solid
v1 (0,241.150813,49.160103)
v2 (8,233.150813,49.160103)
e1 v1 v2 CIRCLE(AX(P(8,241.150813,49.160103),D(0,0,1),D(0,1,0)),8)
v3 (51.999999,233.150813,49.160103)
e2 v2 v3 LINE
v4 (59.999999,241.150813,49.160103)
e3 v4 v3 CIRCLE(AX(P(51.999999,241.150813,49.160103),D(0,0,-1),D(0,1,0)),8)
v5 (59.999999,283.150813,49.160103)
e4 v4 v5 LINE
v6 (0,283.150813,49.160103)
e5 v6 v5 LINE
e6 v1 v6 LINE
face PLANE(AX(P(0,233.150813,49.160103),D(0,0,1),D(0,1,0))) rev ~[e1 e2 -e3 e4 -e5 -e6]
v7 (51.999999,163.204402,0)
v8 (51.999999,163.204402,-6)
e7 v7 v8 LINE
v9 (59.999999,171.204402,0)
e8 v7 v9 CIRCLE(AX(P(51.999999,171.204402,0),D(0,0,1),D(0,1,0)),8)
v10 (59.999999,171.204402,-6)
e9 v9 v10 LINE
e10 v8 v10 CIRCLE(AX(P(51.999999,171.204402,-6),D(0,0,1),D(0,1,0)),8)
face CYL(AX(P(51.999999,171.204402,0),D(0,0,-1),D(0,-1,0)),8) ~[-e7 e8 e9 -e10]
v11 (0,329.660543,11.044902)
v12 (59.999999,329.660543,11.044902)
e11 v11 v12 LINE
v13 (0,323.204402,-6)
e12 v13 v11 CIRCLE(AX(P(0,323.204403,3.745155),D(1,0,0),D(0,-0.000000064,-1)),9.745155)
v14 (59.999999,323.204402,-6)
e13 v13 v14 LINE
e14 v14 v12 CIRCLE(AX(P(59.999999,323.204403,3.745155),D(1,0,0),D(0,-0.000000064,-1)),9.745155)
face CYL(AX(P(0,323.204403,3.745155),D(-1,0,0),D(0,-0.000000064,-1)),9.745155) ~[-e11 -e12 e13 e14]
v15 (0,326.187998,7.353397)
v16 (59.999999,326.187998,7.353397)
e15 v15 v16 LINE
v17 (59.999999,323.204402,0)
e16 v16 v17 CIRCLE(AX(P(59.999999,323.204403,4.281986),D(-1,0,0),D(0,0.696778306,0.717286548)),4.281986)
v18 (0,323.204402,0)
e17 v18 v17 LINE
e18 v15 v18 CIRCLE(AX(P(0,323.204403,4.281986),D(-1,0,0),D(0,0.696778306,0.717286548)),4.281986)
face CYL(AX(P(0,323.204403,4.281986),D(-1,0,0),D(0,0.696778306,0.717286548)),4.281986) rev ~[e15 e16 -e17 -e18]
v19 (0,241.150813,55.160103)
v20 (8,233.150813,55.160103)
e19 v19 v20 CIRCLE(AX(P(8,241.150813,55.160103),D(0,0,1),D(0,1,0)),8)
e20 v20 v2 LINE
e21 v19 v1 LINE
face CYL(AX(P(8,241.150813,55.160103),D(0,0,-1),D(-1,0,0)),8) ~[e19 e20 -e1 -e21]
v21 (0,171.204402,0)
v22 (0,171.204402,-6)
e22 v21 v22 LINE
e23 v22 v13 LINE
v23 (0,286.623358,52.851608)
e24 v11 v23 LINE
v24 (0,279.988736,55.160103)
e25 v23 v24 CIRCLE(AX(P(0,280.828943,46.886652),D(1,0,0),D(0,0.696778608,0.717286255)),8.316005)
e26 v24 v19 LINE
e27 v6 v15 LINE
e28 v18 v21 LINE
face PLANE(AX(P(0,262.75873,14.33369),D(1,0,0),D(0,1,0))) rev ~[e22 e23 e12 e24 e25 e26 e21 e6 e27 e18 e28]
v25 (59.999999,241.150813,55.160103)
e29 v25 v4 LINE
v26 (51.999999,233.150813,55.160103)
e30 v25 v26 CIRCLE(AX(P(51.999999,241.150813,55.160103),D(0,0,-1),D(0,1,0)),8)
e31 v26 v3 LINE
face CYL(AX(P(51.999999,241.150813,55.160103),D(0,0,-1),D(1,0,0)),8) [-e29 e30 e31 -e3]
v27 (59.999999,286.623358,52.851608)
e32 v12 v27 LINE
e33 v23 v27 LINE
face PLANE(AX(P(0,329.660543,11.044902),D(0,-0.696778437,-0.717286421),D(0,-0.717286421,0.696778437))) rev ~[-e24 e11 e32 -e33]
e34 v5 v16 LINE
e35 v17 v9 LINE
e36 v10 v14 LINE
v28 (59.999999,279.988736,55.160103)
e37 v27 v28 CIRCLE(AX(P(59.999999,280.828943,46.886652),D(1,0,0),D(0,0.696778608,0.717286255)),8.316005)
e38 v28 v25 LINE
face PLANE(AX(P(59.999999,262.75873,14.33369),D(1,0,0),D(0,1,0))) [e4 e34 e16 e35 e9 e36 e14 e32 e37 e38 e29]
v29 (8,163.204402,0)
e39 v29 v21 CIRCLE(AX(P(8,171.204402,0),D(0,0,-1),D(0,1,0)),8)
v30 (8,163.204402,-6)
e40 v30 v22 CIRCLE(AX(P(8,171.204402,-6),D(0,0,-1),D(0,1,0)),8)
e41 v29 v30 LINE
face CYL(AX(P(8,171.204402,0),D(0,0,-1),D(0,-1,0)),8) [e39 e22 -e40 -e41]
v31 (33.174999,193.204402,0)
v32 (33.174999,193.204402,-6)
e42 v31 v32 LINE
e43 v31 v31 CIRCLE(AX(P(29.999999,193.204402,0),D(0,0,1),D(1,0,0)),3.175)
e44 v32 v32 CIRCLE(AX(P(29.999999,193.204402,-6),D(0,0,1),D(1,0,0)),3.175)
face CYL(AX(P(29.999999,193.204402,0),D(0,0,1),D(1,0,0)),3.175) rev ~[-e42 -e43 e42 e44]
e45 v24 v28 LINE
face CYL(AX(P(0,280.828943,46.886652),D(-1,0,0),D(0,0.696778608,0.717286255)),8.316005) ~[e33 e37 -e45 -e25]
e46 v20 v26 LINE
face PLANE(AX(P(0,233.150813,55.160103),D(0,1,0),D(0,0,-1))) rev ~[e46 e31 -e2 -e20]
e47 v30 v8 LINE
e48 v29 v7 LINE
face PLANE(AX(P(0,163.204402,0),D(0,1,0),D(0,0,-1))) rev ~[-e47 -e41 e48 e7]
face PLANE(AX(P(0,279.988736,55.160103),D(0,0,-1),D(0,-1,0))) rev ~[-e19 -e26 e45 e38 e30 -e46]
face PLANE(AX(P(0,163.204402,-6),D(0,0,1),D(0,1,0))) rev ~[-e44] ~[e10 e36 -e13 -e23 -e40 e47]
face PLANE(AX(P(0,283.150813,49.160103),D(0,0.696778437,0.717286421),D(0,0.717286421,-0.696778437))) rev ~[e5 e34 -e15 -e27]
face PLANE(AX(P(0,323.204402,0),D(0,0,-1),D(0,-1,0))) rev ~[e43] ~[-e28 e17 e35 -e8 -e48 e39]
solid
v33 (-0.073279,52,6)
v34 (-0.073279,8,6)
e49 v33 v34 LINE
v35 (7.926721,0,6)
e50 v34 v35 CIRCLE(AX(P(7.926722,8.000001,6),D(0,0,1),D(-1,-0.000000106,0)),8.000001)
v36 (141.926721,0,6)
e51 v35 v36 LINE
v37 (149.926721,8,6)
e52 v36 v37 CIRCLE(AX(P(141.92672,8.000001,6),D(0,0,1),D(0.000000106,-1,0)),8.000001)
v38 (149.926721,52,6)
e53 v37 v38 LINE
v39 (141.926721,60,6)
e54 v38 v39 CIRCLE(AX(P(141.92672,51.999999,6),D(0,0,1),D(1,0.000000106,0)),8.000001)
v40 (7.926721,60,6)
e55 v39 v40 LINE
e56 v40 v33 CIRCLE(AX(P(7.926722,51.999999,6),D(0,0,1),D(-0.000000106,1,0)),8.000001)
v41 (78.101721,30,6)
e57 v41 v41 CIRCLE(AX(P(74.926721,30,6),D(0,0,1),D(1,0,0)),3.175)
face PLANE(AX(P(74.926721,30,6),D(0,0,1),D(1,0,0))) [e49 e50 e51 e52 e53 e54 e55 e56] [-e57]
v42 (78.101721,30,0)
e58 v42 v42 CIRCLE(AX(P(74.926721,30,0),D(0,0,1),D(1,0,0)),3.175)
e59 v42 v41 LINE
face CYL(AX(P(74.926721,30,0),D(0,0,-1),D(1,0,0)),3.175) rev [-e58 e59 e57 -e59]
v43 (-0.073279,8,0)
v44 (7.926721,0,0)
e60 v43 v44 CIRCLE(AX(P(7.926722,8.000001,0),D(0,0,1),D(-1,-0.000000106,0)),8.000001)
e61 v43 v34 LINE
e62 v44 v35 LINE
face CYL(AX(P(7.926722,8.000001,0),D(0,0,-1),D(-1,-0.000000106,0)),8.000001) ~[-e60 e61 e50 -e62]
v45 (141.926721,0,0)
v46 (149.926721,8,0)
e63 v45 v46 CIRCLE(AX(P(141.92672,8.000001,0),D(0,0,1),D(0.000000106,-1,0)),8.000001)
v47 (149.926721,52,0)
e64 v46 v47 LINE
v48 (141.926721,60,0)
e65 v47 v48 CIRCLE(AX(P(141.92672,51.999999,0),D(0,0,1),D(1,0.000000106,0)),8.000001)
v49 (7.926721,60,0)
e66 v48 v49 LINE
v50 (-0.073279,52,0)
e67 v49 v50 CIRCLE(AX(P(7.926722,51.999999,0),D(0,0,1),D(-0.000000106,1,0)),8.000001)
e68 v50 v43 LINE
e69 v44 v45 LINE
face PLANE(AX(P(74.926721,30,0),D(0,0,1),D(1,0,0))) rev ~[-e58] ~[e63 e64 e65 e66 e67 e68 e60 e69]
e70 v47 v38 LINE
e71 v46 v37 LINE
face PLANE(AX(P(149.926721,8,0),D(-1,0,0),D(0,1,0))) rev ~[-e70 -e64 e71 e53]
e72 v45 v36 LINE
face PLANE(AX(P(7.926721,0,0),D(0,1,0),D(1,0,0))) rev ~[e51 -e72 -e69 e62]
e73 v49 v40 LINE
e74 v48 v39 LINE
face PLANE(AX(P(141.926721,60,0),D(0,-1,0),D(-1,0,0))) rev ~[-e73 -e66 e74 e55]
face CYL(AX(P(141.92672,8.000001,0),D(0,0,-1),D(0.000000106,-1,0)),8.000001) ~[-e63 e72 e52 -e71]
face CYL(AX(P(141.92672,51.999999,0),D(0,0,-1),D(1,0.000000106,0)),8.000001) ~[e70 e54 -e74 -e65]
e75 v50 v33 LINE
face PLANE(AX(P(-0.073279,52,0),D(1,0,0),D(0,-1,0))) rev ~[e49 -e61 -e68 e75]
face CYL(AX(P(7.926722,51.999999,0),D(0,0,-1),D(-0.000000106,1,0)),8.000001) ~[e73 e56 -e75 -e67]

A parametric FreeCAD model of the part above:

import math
import FreeCAD as App
import Part
import Sketcher


def edges_at(feature, points):
    """Names of the edges that pass closest to the given points."""
    edges = feature.Shape.Edges
    near = lambda p: min(range(len(edges)), key=lambda i: edges[i].distToShape(Part.Vertex(*p))[0])
    return sorted({f"Edge{near(p) + 1}" for p in points})

doc = App.newDocument("Part")
body = doc.addObject("PartDesign::Body", "Body")

# Sketch on XY plane
sketch1 = doc.addObject("Sketcher::SketchObject", "Sketch")
body.addObject(sketch1)
sketch1.AttachmentSupport = (doc.XY_Plane, [""])
sketch1.MapMode = "FlatFace"
sketch1.addGeometry([
    Part.ArcOfCircle(Part.Circle(App.Vector(141.92672, 51.999999, 0), App.Vector(0, 0, 1), 8.000001), math.radians(0.000006), math.radians(89.999994)),  # 0
    Part.LineSegment(App.Vector(141.926721, 60, 0), App.Vector(7.926721, 60, 0)),  # 1
    Part.ArcOfCircle(Part.Circle(App.Vector(7.926722, 51.999999, 0), App.Vector(0, 0, 1), 8.000001), math.radians(90.000006), math.radians(179.999994)),  # 2
    Part.LineSegment(App.Vector(-0.073279, 52, 0), App.Vector(-0.073279, 8, 0)),  # 3
    Part.ArcOfCircle(Part.Circle(App.Vector(7.926722, 8.000001, 0), App.Vector(0, 0, 1), 8.000001), math.radians(-179.999994), math.radians(-90.000006)),  # 4
    Part.LineSegment(App.Vector(7.926721, 0, 0), App.Vector(141.926721, 0, 0)),  # 5
    Part.ArcOfCircle(Part.Circle(App.Vector(141.92672, 8.000001, 0), App.Vector(0, 0, 1), 8.000001), math.radians(-89.999994), math.radians(-0.000006)),  # 6
    Part.LineSegment(App.Vector(149.926721, 8, 0), App.Vector(149.926721, 52, 0)),  # 7
    Part.Circle(App.Vector(74.926721, 30, 0), App.Vector(0, 0, 1), 3.175),  # 8
], False)
sketch1.addConstraint([
    Sketcher.Constraint("Tangent", 0, 2, 1, 1),
    Sketcher.Constraint("Tangent", 1, 2, 2, 1),
    Sketcher.Constraint("Tangent", 2, 2, 3, 1),
    Sketcher.Constraint("Tangent", 3, 2, 4, 1),
    Sketcher.Constraint("Tangent", 4, 2, 5, 1),
    Sketcher.Constraint("Tangent", 5, 2, 6, 1),
    Sketcher.Constraint("Tangent", 6, 2, 7, 1),
    Sketcher.Constraint("Tangent", 7, 2, 0, 1),
    Sketcher.Constraint("Horizontal", 1),
    Sketcher.Constraint("Vertical", 3),
    Sketcher.Constraint("Horizontal", 5),
    Sketcher.Constraint("Vertical", 7),
    Sketcher.Constraint("Equal", 0, 2),
    Sketcher.Constraint("Equal", 2, 4),
    Sketcher.Constraint("Equal", 4, 6),
    Sketcher.Constraint("PointOnObject", 4, 2, -1),
    Sketcher.Constraint("Radius", 0, 8.000001),
    Sketcher.Constraint("Diameter", 8, 6.35),
    Sketcher.Constraint("DistanceX", 1, 2, 1, 1, 134.0),
    Sketcher.Constraint("DistanceY", 3, 2, 3, 1, 44.0),
    Sketcher.Constraint("DistanceY", -1, 1, 8, 3, 30.0),
    Sketcher.Constraint("DistanceX", 8, 3, 0, 3, 66.999999),
    Sketcher.Constraint("DistanceX", -1, 1, 0, 3, 141.92672),
])
pad1 = doc.addObject("PartDesign::Pad", "Pad")
body.addObject(pad1)
pad1.Profile = sketch1
pad1.Length = 6
body2 = doc.addObject("PartDesign::Body", "Body001")

# Sketch on YZ plane
sketch2 = doc.addObject("Sketcher::SketchObject", "Sketch001")
body2.addObject(sketch2)
sketch2.AttachmentSupport = (doc.getObject("YZ_Plane001"), [""])
sketch2.MapMode = "FlatFace"
sketch2.addGeometry([
    Part.LineSegment(App.Vector(163.204402, 0, 0), App.Vector(163.204402, -6, 0)),  # 0
    Part.LineSegment(App.Vector(163.204402, -6, 0), App.Vector(323.204402, -6, 0)),  # 1
    Part.ArcOfCircle(Part.Circle(App.Vector(323.204403, 3.745155, 0), App.Vector(0, 0, 1), 9.745155), math.radians(-90.000004), math.radians(48.509379)),  # 2
    Part.LineSegment(App.Vector(329.660543, 11.044902, 0), App.Vector(286.623358, 52.851608, 0)),  # 3
    Part.ArcOfCircle(Part.Circle(App.Vector(280.828943, 46.886652, 0), App.Vector(0, 0, 1), 8.316005), math.radians(45.830881), math.radians(95.798772)),  # 4
    Part.LineSegment(App.Vector(279.988736, 55.160103, 0), App.Vector(233.150813, 55.160103, 0)),  # 5
    Part.LineSegment(App.Vector(233.150813, 55.160103, 0), App.Vector(233.150813, 49.160103, 0)),  # 6
    Part.LineSegment(App.Vector(233.150813, 49.160103, 0), App.Vector(283.150813, 49.160103, 0)),  # 7
    Part.LineSegment(App.Vector(283.150813, 49.160103, 0), App.Vector(326.187998, 7.353397, 0)),  # 8
    Part.ArcOfCircle(Part.Circle(App.Vector(323.204403, 4.281986, 0), App.Vector(0, 0, 1), 4.281986), math.radians(-90.000014), math.radians(45.830905)),  # 9
    Part.LineSegment(App.Vector(323.204402, 0, 0), App.Vector(163.204402, 0, 0)),  # 10
], False)
sketch2.addConstraint([
    Sketcher.Constraint("Coincident", 0, 2, 1, 1),
    Sketcher.Constraint("Coincident", 1, 2, 2, 1),
    Sketcher.Constraint("Coincident", 2, 2, 3, 1),
    Sketcher.Constraint("Coincident", 3, 2, 4, 1),
    Sketcher.Constraint("Coincident", 4, 2, 5, 1),
    Sketcher.Constraint("Coincident", 5, 2, 6, 1),
    Sketcher.Constraint("Coincident", 6, 2, 7, 1),
    Sketcher.Constraint("Coincident", 7, 2, 8, 1),
    Sketcher.Constraint("Coincident", 8, 2, 9, 2),
    Sketcher.Constraint("Coincident", 9, 1, 10, 1),
    Sketcher.Constraint("Coincident", 10, 2, 0, 1),
    Sketcher.Constraint("Vertical", 0),
    Sketcher.Constraint("Horizontal", 1),
    Sketcher.Constraint("Horizontal", 5),
    Sketcher.Constraint("Vertical", 6),
    Sketcher.Constraint("Horizontal", 7),
    Sketcher.Constraint("Horizontal", 10),
    Sketcher.Constraint("PointOnObject", 9, 1, -1),
    Sketcher.Constraint("DistanceX", 1, 1, 1, 2, 160.0),
    Sketcher.Constraint("DistanceX", 7, 1, 7, 2, 50.0),
    Sketcher.Constraint("DistanceX", 10, 2, 10, 1, 160.0),
    Sketcher.Constraint("DistanceY", 0, 2, 0, 1, 6.0),
    Sketcher.Constraint("DistanceY", 6, 2, 6, 1, 6.0),
    Sketcher.Constraint("Distance", 3, 60.0),
    Sketcher.Constraint("Distance", 8, 60.0),
    Sketcher.Constraint("DistanceX", 0, 2, 2, 3, 160.000001),
    Sketcher.Constraint("DistanceX", 0, 2, 9, 3, 160.000001),
    Sketcher.Constraint("DistanceX", -1, 1, 8, 2, 326.187998),
    Sketcher.Constraint("Radius", 2, 9.745155),
    Sketcher.Constraint("Radius", 4, 8.316005),
    Sketcher.Constraint("Radius", 9, 4.281986),
    Sketcher.Constraint("DistanceX", -1, 1, 0, 2, 163.204402),
    Sketcher.Constraint("DistanceX", 4, 3, 2, 2, 48.8316),
    Sketcher.Constraint("DistanceY", 2, 2, 4, 2, 44.115201),
    Sketcher.Constraint("DistanceX", 5, 2, 5, 1, 46.837923),
    Sketcher.Constraint("DistanceY", -1, 1, 4, 3, 46.886652),
])
pad2 = doc.addObject("PartDesign::Pad", "Pad001")
body2.addObject(pad2)
pad2.Profile = sketch2
pad2.Length = 59.999999

# Sketch on XY plane
sketch3 = doc.addObject("Sketcher::SketchObject", "Sketch002")
body2.addObject(sketch3)
sketch3.AttachmentSupport = (doc.getObject("XY_Plane001"), [""])
sketch3.MapMode = "FlatFace"
sketch3.addGeometry(Part.Circle(App.Vector(29.999999, 193.204402, 0), App.Vector(0, 0, 1), 3.175), False)
sketch3.addConstraint([
    Sketcher.Constraint("Diameter", 0, 6.35),
    Sketcher.Constraint("DistanceX", -1, 1, 0, 3, 29.999999),
    Sketcher.Constraint("DistanceY", -1, 1, 0, 3, 193.204402),
])
pocket1 = doc.addObject("PartDesign::Pocket", "Pocket")
body2.addObject(pocket1)
pocket1.Profile = sketch3
pocket1.Length = 25
doc.recompute()

fillet = doc.addObject("PartDesign::Fillet", "Fillet")
body2.addObject(fillet)
fillet.Base = (pocket1, edges_at(pocket1, [(60, 163.204, -3), (0, 163.204, -3)]))
fillet.Radius = 8
doc.recompute()

fillet2 = doc.addObject("PartDesign::Fillet", "Fillet001")
body2.addObject(fillet2)
fillet2.Base = (fillet, edges_at(fillet, [(60, 233.151, 52.16), (0, 233.151, 52.16)]))
fillet2.Radius = 8

doc.recompute()
